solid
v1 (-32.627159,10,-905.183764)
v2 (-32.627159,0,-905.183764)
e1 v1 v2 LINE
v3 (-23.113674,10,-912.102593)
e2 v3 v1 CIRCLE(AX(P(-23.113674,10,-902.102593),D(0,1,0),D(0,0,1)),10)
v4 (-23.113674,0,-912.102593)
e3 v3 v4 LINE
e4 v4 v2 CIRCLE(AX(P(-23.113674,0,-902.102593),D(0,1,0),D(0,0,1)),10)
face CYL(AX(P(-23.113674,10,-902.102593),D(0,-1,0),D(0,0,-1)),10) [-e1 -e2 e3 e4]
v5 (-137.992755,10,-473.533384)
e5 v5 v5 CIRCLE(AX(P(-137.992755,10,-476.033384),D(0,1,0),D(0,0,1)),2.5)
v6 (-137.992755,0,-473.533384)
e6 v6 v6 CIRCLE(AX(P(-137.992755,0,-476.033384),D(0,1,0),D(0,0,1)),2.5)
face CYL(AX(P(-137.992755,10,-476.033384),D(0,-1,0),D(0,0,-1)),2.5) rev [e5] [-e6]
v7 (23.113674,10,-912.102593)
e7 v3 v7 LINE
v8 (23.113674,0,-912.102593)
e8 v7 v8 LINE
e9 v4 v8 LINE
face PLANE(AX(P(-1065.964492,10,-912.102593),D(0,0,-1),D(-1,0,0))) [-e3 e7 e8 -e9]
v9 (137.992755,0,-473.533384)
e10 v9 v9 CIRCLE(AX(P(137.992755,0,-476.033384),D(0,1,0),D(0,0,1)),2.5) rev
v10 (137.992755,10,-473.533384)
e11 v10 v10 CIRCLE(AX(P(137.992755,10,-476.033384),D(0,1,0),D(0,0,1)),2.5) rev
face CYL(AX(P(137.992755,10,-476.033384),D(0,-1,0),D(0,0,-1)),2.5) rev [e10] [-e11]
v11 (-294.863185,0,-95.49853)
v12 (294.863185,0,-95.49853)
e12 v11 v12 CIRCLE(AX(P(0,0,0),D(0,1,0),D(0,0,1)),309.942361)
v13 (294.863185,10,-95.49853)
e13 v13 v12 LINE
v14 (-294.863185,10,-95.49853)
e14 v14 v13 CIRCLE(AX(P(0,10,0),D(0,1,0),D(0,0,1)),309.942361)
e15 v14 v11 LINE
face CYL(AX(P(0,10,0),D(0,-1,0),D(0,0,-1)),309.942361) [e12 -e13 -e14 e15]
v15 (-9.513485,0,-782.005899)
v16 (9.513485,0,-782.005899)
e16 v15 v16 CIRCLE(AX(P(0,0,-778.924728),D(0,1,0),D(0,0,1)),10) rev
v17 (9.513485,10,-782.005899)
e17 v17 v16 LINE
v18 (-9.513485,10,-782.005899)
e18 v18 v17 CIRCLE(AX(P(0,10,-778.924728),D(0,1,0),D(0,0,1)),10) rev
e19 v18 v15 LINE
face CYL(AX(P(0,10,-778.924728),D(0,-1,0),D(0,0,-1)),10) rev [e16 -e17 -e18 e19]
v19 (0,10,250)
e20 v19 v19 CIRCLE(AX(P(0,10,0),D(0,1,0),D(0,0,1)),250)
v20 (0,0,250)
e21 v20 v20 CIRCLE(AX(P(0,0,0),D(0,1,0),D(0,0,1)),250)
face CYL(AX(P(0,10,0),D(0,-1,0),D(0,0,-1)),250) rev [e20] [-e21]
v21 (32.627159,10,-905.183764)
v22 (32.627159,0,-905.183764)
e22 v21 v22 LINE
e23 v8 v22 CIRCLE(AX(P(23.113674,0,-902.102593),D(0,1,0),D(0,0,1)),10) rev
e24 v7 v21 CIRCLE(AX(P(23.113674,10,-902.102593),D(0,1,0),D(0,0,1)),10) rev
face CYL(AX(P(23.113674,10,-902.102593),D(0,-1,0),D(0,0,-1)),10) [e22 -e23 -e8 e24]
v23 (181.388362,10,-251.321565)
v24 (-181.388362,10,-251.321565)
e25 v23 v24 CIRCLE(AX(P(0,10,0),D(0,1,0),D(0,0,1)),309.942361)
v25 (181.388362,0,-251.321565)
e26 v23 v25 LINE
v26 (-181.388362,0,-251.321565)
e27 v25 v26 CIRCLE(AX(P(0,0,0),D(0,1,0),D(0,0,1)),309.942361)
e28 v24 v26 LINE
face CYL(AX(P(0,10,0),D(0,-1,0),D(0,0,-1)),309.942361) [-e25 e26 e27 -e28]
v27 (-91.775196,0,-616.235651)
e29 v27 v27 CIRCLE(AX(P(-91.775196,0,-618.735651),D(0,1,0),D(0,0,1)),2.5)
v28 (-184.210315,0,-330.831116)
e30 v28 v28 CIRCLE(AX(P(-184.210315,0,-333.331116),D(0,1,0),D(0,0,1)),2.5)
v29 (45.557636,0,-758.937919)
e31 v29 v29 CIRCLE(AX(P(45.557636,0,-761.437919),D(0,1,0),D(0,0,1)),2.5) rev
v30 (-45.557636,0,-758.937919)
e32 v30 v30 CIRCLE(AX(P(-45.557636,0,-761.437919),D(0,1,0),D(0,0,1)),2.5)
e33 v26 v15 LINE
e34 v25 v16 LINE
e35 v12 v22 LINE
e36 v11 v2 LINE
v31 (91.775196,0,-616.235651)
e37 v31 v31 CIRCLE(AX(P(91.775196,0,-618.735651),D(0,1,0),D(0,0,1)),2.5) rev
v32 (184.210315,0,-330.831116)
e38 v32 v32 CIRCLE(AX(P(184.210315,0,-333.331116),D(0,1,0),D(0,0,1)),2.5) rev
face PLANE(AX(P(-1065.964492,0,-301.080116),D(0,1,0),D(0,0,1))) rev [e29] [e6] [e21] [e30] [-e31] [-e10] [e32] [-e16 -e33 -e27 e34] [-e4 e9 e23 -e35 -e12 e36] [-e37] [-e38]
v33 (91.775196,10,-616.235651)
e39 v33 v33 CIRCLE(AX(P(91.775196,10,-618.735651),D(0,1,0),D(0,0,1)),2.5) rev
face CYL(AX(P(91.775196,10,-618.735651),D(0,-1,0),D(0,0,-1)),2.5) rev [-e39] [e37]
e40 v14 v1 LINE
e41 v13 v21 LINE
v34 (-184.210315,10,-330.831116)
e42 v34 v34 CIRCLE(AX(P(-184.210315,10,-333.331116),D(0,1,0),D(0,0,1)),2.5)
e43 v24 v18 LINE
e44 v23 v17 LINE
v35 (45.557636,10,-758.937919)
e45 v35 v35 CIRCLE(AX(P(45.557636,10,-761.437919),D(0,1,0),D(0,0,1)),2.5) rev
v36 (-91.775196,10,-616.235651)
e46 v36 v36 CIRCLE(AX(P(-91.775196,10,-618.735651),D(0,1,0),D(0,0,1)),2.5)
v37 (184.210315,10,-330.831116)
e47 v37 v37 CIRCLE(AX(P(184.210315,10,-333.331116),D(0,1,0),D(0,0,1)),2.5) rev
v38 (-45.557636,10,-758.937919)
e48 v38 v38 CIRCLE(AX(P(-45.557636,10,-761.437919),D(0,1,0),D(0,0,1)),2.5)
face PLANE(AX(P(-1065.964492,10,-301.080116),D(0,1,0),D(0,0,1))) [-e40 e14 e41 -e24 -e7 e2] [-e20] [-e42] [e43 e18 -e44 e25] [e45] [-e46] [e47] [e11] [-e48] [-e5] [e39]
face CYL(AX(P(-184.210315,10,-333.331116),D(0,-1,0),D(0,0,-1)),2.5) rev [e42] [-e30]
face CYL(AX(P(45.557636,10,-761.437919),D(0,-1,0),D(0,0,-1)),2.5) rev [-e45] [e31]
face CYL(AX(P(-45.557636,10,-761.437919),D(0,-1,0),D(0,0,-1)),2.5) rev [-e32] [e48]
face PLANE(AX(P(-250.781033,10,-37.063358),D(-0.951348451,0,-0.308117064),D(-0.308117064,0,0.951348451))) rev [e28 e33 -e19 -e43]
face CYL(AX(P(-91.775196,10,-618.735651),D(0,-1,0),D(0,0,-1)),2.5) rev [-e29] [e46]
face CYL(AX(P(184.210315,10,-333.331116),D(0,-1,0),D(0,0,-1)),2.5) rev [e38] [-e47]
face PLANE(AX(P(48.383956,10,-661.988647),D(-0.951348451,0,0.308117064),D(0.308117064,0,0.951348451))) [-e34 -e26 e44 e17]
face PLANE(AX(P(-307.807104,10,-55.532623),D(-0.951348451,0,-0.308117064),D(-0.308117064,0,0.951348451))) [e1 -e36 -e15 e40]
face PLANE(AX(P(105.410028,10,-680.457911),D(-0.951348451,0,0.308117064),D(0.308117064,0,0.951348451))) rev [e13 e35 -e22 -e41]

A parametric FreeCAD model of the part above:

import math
import FreeCAD as App
import Part
import Sketcher
Q = App.Units.Quantity

doc = App.newDocument("Part")
body = doc.addObject("PartDesign::Body", "Body")

# Sketch on XZ plane
sketch1 = body.newObject("Sketcher::SketchObject", "Sketch")
sketch1.AttachmentSupport = (doc.getObject("XZ_Plane"), [""])
sketch1.MapMode = "FlatFace"
sketch1.addGeometry(Part.LineSegment(App.Vector(-32.6, -905.2, 0), App.Vector(-294.9, -95.5, 0)), False)
sketch1.addGeometry(Part.ArcOfCircle(Part.Circle(App.Vector(0, 0, 0), App.Vector(0, 0, 1), 309.9), math.radians(-18), math.radians(198)), False)
sketch1.addGeometry(Part.LineSegment(App.Vector(294.9, -95.5, 0), App.Vector(32.6, -905.2, 0)), False)
sketch1.addGeometry(Part.ArcOfCircle(Part.Circle(App.Vector(23.1, -902.1, 0), App.Vector(0, 0, 1), 10), math.radians(-90), math.radians(-18)), False)
sketch1.addGeometry(Part.LineSegment(App.Vector(23.1, -912.1, 0), App.Vector(-23.1, -912.1, 0)), False)
sketch1.addGeometry(Part.ArcOfCircle(Part.Circle(App.Vector(-23.1, -902.1, 0), App.Vector(0, 0, 1), 10), math.radians(-162), math.radians(-90)), False)
sketch1.addGeometry(Part.Circle(App.Vector(0, 0, 0), App.Vector(0, 0, 1), 250), False)
sketch1.addGeometry(Part.Circle(App.Vector(-184.2, -333.3, 0), App.Vector(0, 0, 1), 2.5), False)
sketch1.addGeometry(Part.Circle(App.Vector(-138, -476, 0), App.Vector(0, 0, 1), 2.5), False)
sketch1.addGeometry(Part.Circle(App.Vector(-91.8, -618.7, 0), App.Vector(0, 0, 1), 2.5), False)
sketch1.addGeometry(Part.Circle(App.Vector(-45.6, -761.4, 0), App.Vector(0, 0, 1), 2.5), False)
sketch1.addGeometry(Part.LineSegment(App.Vector(9.5, -782, 0), App.Vector(181.4, -251.3, 0)), False)
sketch1.addGeometry(Part.ArcOfCircle(Part.Circle(App.Vector(0, 0, 0), App.Vector(0, 0, 1), 309.9), math.radians(-126), math.radians(-54)), False)
sketch1.addGeometry(Part.LineSegment(App.Vector(-181.4, -251.3, 0), App.Vector(-9.5, -782, 0)), False)
sketch1.addGeometry(Part.ArcOfCircle(Part.Circle(App.Vector(0, -778.9, 0), App.Vector(0, 0, 1), 10), math.radians(-162), math.radians(-18)), False)
sketch1.addGeometry(Part.Circle(App.Vector(184.2, -333.3, 0), App.Vector(0, 0, 1), 2.5), False)
sketch1.addGeometry(Part.Circle(App.Vector(138, -476, 0), App.Vector(0, 0, 1), 2.5), False)
sketch1.addGeometry(Part.Circle(App.Vector(91.8, -618.7, 0), App.Vector(0, 0, 1), 2.5), False)
sketch1.addGeometry(Part.Circle(App.Vector(45.6, -761.4, 0), App.Vector(0, 0, 1), 2.5), False)
sketch1.addConstraint(Sketcher.Constraint("Tangent", 0, 2, 1, 2))
sketch1.addConstraint(Sketcher.Constraint("Tangent", 1, 1, 2, 1))
sketch1.addConstraint(Sketcher.Constraint("Tangent", 2, 2, 3, 2))
sketch1.addConstraint(Sketcher.Constraint("Tangent", 3, 1, 4, 1))
sketch1.addConstraint(Sketcher.Constraint("Tangent", 4, 2, 5, 2))
sketch1.addConstraint(Sketcher.Constraint("Tangent", 5, 1, 0, 1))
sketch1.addConstraint(Sketcher.Constraint("Coincident", 11, 2, 12, 2))
sketch1.addConstraint(Sketcher.Constraint("Coincident", 12, 1, 13, 1))
sketch1.addConstraint(Sketcher.Constraint("Tangent", 13, 2, 14, 1))
sketch1.addConstraint(Sketcher.Constraint("Tangent", 14, 2, 11, 1))
sketch1.addConstraint(Sketcher.Constraint("Horizontal", 4))
sketch1.addConstraint(Sketcher.Constraint("Coincident", 1, 3, -1, 1))
sketch1.addConstraint(Sketcher.Constraint("Coincident", 6, 3, -1, 1))
sketch1.addConstraint(Sketcher.Constraint("Coincident", 12, 3, -1, 1))
sketch1.addConstraint(Sketcher.Constraint("Equal", 3, 5))
sketch1.addConstraint(Sketcher.Constraint("Equal", 7, 8))
sketch1.addConstraint(Sketcher.Constraint("Equal", 8, 9))
sketch1.addConstraint(Sketcher.Constraint("Equal", 9, 10))
sketch1.addConstraint(Sketcher.Constraint("Equal", 1, 12))
sketch1.addConstraint(Sketcher.Constraint("Equal", 5, 14))
sketch1.addConstraint(Sketcher.Constraint("Equal", 10, 15))
sketch1.addConstraint(Sketcher.Constraint("Equal", 15, 16))
sketch1.addConstraint(Sketcher.Constraint("Equal", 16, 17))
sketch1.addConstraint(Sketcher.Constraint("Equal", 17, 18))
sketch1.addConstraint(Sketcher.Constraint("Symmetric", 7, 3, 15, 3, -2))
sketch1.addConstraint(Sketcher.Constraint("Symmetric", 8, 3, 16, 3, -2))
sketch1.addConstraint(Sketcher.Constraint("Symmetric", 9, 3, 17, 3, -2))
sketch1.addConstraint(Sketcher.Constraint("Symmetric", 10, 3, 18, 3, -2))
sketch1.addConstraint(Sketcher.Constraint("PointOnObject", 14, 3, -2))
sketch1.addConstraint(Sketcher.Constraint("Parallel", 2, 11))
sketch1.addConstraint(Sketcher.Constraint("Parallel", 0, 13))
sketch1.addConstraint(Sketcher.Constraint("Horizontal", 11, 2, 12, 1))
sketch1.addConstraint(Sketcher.Constraint("Diameter", 6, Q("500 mm")))
sketch1.addConstraint(Sketcher.Constraint("Diameter", 7, Q("5 mm")))
sketch1.addConstraint(Sketcher.Constraint("Radius", 3, Q("10 mm")))
sketch1.addConstraint(Sketcher.Constraint("Radius", 1, Q("309.942361 mm")))
sketch1.addConstraint(Sketcher.Constraint("Distance", 11, Q("557.823301 mm")))
sketch1.addConstraint(Sketcher.Constraint("DistanceX", 4, 2, 4, 1, Q("46.227349 mm")))
sketch1.addConstraint(Sketcher.Constraint("DistanceY", 13, 2, -1, 1, Q("782.005899 mm")))
sketch1.addConstraint(Sketcher.Constraint("DistanceY", 9, 3, -1, 1, Q("618.735651 mm")))
sketch1.addConstraint(Sketcher.Constraint("DistanceY", 10, 3, -1, 1, Q("761.437919 mm")))
sketch1.addConstraint(Sketcher.Constraint("DistanceX", 7, 3, 5, 3, Q("161.09664 mm")))
sketch1.addConstraint(Sketcher.Constraint("DistanceX", 7, 3, 8, 3, Q("46.21756 mm")))
sketch1.addConstraint(Sketcher.Constraint("DistanceY", 5, 3, 8, 3, Q("426.06921 mm")))
sketch1.addConstraint(Sketcher.Constraint("DistanceX", 8, 3, 9, 3, Q("46.21756 mm")))
sketch1.addConstraint(Sketcher.Constraint("DistanceX", 10, 3, 5, 3, Q("22.443962 mm")))
sketch1.addConstraint(Sketcher.Constraint("DistanceY", 15, 3, 11, 2, Q("82.009551 mm")))
pad1 = body.newObject("PartDesign::Pad", "Pad")
pad1.Profile = sketch1
pad1.Length = 10
pad1.Reversed = True

doc.recompute()
